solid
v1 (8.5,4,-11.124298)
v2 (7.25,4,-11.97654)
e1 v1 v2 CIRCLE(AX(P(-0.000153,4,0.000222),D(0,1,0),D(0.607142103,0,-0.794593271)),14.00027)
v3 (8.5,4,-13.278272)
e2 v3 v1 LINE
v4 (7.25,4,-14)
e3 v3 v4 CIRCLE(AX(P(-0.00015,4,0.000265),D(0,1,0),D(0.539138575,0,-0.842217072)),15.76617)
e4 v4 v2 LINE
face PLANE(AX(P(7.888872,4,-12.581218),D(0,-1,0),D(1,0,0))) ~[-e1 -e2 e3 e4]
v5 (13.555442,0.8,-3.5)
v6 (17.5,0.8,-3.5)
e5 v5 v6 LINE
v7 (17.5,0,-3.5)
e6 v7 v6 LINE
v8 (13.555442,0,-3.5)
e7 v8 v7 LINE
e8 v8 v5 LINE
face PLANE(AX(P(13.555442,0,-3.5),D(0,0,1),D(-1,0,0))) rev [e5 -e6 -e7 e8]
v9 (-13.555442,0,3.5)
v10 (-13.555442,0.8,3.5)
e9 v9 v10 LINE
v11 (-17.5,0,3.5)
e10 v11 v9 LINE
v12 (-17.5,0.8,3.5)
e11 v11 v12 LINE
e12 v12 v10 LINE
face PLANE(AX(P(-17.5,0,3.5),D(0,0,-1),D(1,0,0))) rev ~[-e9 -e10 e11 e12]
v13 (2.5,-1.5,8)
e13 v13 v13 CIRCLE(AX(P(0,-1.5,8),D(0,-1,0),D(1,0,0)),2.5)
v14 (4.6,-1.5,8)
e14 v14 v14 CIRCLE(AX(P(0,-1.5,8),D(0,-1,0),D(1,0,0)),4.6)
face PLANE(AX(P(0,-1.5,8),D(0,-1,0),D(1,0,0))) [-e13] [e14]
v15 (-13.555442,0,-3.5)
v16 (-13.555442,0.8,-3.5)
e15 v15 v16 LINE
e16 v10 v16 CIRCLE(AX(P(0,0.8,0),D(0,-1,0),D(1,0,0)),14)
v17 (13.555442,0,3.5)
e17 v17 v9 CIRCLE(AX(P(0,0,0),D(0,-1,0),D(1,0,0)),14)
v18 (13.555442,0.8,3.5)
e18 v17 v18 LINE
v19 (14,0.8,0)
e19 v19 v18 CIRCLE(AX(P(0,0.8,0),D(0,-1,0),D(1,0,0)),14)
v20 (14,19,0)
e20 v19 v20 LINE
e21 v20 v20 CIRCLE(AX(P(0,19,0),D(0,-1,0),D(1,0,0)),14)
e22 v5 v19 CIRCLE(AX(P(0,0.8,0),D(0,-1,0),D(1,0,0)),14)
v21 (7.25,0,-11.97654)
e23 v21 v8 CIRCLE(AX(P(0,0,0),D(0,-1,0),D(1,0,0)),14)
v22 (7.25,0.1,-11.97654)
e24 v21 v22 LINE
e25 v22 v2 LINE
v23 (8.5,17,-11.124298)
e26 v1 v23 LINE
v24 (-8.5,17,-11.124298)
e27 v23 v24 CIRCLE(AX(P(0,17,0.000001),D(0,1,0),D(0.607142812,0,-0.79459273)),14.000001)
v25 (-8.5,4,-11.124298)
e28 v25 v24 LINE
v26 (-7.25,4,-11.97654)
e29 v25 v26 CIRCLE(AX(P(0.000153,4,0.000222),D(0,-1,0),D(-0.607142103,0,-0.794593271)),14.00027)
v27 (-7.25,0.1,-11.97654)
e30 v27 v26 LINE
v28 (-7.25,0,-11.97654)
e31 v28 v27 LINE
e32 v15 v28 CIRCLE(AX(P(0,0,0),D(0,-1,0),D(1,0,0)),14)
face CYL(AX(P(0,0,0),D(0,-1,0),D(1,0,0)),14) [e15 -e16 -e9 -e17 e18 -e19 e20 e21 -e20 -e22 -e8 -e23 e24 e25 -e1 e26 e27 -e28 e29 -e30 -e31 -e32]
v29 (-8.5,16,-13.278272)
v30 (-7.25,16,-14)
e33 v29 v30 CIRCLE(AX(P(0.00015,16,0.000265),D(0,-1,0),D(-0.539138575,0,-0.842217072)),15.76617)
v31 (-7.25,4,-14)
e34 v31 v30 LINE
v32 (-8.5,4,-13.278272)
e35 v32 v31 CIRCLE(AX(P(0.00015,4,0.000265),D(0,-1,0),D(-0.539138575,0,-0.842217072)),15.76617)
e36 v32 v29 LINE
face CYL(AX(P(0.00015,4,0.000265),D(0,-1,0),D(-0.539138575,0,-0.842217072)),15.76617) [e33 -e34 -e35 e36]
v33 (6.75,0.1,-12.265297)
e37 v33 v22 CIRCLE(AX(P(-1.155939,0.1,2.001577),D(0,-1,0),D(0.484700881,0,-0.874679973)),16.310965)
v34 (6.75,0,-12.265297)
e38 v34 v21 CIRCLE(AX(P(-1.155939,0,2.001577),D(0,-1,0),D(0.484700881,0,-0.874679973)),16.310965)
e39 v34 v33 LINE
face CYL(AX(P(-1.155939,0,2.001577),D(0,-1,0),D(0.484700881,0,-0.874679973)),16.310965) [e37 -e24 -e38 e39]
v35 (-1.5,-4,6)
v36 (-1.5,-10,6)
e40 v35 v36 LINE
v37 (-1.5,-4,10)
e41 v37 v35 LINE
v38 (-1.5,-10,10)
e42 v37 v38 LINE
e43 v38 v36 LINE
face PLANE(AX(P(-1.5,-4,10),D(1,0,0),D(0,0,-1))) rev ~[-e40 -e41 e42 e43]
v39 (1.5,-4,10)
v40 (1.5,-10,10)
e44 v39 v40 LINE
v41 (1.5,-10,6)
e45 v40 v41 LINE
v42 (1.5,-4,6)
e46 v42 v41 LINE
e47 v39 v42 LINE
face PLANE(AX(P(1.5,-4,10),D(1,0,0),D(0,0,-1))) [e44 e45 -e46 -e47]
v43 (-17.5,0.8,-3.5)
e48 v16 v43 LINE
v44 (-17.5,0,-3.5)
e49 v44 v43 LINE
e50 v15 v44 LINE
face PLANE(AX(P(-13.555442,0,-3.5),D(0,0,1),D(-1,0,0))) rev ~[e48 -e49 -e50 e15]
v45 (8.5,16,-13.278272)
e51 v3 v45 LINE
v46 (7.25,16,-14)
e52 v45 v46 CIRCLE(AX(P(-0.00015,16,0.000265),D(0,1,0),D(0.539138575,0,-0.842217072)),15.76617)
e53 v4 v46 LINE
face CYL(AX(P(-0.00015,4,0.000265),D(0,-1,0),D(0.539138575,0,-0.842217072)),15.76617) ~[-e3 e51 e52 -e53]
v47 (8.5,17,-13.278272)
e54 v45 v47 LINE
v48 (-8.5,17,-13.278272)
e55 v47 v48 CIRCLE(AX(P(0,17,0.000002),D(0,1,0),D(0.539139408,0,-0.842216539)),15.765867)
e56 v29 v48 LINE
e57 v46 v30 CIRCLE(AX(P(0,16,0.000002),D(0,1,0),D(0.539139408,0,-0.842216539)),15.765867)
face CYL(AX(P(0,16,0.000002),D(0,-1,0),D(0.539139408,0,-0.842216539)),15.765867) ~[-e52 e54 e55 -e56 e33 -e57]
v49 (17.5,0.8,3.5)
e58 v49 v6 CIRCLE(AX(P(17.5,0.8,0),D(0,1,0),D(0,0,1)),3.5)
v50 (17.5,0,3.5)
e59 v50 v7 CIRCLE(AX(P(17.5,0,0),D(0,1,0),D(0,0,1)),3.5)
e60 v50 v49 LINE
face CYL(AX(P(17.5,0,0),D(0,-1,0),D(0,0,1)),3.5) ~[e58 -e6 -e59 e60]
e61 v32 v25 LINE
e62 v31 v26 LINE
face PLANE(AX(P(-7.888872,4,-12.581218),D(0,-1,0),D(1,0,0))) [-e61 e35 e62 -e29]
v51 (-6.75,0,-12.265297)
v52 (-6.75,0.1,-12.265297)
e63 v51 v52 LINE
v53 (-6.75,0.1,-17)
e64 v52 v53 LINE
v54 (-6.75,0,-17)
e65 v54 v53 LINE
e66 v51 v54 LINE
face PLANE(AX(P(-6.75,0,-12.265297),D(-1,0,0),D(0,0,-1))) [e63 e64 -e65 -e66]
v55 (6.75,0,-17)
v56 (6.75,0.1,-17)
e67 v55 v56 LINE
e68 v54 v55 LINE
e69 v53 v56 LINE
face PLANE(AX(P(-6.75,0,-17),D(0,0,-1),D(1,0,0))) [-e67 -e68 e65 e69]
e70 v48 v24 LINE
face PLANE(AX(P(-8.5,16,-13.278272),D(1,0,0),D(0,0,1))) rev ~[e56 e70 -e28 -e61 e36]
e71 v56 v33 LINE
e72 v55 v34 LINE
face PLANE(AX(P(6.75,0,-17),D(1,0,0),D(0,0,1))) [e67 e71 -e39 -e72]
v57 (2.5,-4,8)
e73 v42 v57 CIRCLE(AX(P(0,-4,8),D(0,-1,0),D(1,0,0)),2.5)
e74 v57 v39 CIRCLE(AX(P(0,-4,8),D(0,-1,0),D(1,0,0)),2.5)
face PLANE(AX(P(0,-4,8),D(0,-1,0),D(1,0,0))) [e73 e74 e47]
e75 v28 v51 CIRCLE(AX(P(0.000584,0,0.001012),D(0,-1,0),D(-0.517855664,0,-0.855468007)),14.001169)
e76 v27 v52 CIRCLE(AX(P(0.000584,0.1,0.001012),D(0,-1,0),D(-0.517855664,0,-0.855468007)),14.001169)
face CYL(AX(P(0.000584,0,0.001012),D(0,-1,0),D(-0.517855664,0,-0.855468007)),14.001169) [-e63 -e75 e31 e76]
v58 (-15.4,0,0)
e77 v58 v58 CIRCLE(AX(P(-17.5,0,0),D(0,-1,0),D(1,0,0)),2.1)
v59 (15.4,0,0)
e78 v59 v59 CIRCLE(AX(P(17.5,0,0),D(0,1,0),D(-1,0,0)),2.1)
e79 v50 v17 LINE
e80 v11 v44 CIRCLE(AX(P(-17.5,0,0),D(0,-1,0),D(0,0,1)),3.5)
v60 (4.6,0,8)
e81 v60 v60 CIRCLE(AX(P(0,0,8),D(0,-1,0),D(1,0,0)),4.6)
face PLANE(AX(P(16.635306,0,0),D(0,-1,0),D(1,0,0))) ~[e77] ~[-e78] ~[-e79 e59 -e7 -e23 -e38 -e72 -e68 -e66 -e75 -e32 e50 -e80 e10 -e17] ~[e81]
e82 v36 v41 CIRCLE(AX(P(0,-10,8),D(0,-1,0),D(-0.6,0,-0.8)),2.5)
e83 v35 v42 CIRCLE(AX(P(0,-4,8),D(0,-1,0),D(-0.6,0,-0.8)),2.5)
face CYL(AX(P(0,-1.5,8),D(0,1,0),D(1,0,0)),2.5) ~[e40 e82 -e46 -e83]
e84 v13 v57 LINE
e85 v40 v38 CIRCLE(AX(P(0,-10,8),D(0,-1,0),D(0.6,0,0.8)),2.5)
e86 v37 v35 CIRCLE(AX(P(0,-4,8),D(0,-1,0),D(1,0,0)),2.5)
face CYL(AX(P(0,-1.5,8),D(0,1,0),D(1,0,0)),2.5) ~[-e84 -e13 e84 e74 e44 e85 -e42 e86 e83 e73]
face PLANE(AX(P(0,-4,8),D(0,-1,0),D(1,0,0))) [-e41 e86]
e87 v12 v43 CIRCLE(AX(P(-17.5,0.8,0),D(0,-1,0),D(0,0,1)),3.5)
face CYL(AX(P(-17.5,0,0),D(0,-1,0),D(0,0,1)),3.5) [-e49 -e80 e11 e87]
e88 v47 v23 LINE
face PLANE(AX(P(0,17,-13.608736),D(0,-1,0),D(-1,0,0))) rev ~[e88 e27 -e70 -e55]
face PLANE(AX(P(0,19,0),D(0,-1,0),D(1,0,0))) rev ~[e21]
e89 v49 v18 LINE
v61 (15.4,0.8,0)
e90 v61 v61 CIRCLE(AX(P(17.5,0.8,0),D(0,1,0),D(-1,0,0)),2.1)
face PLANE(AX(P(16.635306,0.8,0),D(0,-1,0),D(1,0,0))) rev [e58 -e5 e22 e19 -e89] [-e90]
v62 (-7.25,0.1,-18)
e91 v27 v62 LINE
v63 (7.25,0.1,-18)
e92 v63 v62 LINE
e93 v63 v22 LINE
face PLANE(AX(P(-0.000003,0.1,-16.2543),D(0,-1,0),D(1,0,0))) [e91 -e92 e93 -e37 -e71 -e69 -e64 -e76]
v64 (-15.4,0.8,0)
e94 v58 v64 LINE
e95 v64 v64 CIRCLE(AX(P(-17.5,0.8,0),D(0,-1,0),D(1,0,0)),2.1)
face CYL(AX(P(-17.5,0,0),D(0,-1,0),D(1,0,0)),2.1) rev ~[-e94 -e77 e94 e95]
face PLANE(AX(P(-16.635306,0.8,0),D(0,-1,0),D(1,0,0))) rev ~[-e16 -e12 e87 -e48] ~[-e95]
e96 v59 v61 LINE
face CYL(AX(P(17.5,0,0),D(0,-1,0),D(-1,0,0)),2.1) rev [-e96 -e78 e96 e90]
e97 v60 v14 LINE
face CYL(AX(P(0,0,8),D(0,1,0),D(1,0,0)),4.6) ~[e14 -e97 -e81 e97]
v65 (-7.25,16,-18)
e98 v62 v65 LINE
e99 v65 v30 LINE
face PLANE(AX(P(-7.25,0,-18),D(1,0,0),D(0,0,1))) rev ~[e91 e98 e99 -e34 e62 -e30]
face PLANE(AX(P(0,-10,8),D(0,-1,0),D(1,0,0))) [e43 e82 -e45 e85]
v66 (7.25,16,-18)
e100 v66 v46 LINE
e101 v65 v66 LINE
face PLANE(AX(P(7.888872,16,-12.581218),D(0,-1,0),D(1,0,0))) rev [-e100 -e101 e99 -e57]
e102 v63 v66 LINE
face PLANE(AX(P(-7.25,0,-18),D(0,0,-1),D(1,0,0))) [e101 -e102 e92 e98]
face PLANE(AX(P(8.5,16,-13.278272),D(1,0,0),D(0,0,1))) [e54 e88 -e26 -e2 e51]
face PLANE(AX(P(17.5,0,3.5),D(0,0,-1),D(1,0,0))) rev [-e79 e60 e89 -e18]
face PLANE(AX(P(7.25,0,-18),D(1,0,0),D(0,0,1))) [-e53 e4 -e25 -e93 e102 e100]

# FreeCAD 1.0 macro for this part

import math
import FreeCAD as App
import Part
import Sketcher
from FreeCAD import Vector


def add_polygon(sketch, points):
    """Adds a closed chain of lines whose ends are joined by coincident constraints."""
    first, n = sketch.GeometryCount, len(points)
    for a, b in zip(points, points[1:] + points[:1]):
        sketch.addGeometry(Part.LineSegment(App.Vector(*a, 0), App.Vector(*b, 0)), False)
    for i in range(n):
        sketch.addConstraint(Sketcher.Constraint("Coincident", first + i, 2, first + (i + 1) % n, 1))

doc = App.newDocument("Part")
body = doc.addObject("PartDesign::Body", "Body")

sketch1 = doc.addObject("Sketcher::SketchObject", "Sketch")
body.addObject(sketch1)
sketch1.AttachmentSupport = (doc.XZ_Plane, [""])
sketch1.MapMode = "FlatFace"
sketch1.addGeometry(Part.Circle(Vector(0, 0, 0), Vector(0, 0, 1), 14), False)
sketch1.addConstraint([
    Sketcher.Constraint("Coincident", 0, 3, -1, 1),
    Sketcher.Constraint("Diameter", 0, 28.0),
])
pad1 = doc.addObject("PartDesign::Pad", "Pad")
body.addObject(pad1)
pad1.Profile = sketch1
pad1.Length = 19
pad1.Reversed = True

sketch2 = doc.addObject("Sketcher::SketchObject", "Sketch001")
body.addObject(sketch2)
sketch2.AttachmentSupport = (doc.XZ_Plane, [""])
sketch2.MapMode = "FlatFace"
add_polygon(sketch2, [(-7.25, -11.97654), (-7.25, -18), (7.25, -18), (7.25, -11.97654)])
sketch2.addConstraint([
    Sketcher.Constraint("Vertical", 0),
    Sketcher.Constraint("Horizontal", 1),
    Sketcher.Constraint("Vertical", 2),
    Sketcher.Constraint("Horizontal", 3),
    Sketcher.Constraint("DistanceX", 1, 1, 1, 2, 14.5),
    Sketcher.Constraint("DistanceY", 0, 2, -1, 1, 18.0),
    Sketcher.Constraint("DistanceX", 0, 2, -1, 1, 7.25),
    Sketcher.Constraint("DistanceY", 0, 2, 0, 1, 6.02346),
])
pad2 = doc.addObject("PartDesign::Pad", "Pad001")
body.addObject(pad2)
pad2.Profile = sketch2
pad2.Length = 16
pad2.Reversed = True

sketch3 = doc.addObject("Sketcher::SketchObject", "Sketch002")
body.addObject(sketch3)
sketch3.AttachmentSupport = (doc.XZ_Plane, [""])
sketch3.MapMode = "FlatFace"
sketch3.addGeometry([
    Part.ArcOfCircle(Part.Circle(Vector(-17.5, 0, 0), Vector(0, 0, 1), 3.5), math.radians(90), math.radians(270)),
    Part.LineSegment(Vector(-17.5, -3.5, 0), Vector(-13.555442, -3.5, 0)),
    Part.LineSegment(Vector(-13.555442, -3.5, 0), Vector(-13.555442, 3.5, 0)),
    Part.LineSegment(Vector(-13.555442, 3.5, 0), Vector(-17.5, 3.5, 0)),
    Part.Circle(Vector(-17.5, 0, 0), Vector(0, 0, 1), 2.1),
], False)
sketch3.addConstraint([
    Sketcher.Constraint("Tangent", 0, 2, 1, 1),
    Sketcher.Constraint("Coincident", 1, 2, 2, 1),
    Sketcher.Constraint("Coincident", 2, 2, 3, 1),
    Sketcher.Constraint("Tangent", 3, 2, 0, 1),
    Sketcher.Constraint("Horizontal", 1),
    Sketcher.Constraint("Vertical", 2),
    Sketcher.Constraint("Horizontal", 3),
    Sketcher.Constraint("Coincident", 4, 3, 0, 3),
    Sketcher.Constraint("PointOnObject", 0, 3, -1),
    Sketcher.Constraint("Diameter", 4, 4.2),
    Sketcher.Constraint("Radius", 0, 3.5),
    Sketcher.Constraint("DistanceX", 0, 3, -1, 1, 17.5),
    Sketcher.Constraint("DistanceX", 1, 1, 1, 2, 3.944558),
])
pad3 = doc.addObject("PartDesign::Pad", "Pad002")
body.addObject(pad3)
pad3.Profile = sketch3
pad3.Length = 0.8
pad3.Reversed = True
doc.recompute()

mirrored = doc.addObject("PartDesign::Mirrored", "Mirrored")
body.addObject(mirrored)
mirrored.Originals = [pad3]
mirrored.MirrorPlane = (doc.YZ_Plane, [""])
body.Tip = mirrored

sketch4 = doc.addObject("Sketcher::SketchObject", "Sketch003")
body.addObject(sketch4)
sketch4.AttachmentSupport = (doc.XZ_Plane, [""])
sketch4.MapMode = "FlatFace"
sketch4.addGeometry(Part.Circle(Vector(0, 8, 0), Vector(0, 0, 1), 4.6), False)
sketch4.addConstraint([
    Sketcher.Constraint("PointOnObject", 0, 3, -2),
    Sketcher.Constraint("Diameter", 0, 9.2),
    Sketcher.Constraint("DistanceY", -1, 1, 0, 3, 8.0),
])
pad4 = doc.addObject("PartDesign::Pad", "Pad003")
body.addObject(pad4)
pad4.Profile = sketch4
pad4.Length = 1.5

sketch5 = doc.addObject("Sketcher::SketchObject", "Sketch004")
body.addObject(sketch5)
sketch5.AttachmentSupport = (doc.XZ_Plane, [""])
sketch5.MapMode = "FlatFace"
sketch5.AttachmentOffset = App.Placement(Vector(0, 0, 1.5), App.Rotation())
sketch5.addGeometry(Part.Circle(Vector(0, 8, 0), Vector(0, 0, 1), 2.5), False)
sketch5.addConstraint([
    Sketcher.Constraint("PointOnObject", 0, 3, -2),
    Sketcher.Constraint("Diameter", 0, 5.0),
    Sketcher.Constraint("DistanceY", -1, 1, 0, 3, 8.0),
])
pad5 = doc.addObject("PartDesign::Pad", "Pad004")
body.addObject(pad5)
pad5.Profile = sketch5
pad5.Length = 2.5

sketch6 = doc.addObject("Sketcher::SketchObject", "Sketch005")
body.addObject(sketch6)
sketch6.AttachmentSupport = (doc.XZ_Plane, [""])
sketch6.MapMode = "FlatFace"
sketch6.AttachmentOffset = App.Placement(Vector(0, 0, 4), App.Rotation())
sketch6.addGeometry([
    Part.LineSegment(Vector(-1.5, 10, 0), Vector(-1.5, 6, 0)),
    Part.ArcOfCircle(Part.Circle(Vector(0, 8, 0), Vector(0, 0, 1), 2.5), math.radians(-126.869898), math.radians(-53.130102)),
    Part.LineSegment(Vector(1.5, 6, 0), Vector(1.5, 10, 0)),
    Part.ArcOfCircle(Part.Circle(Vector(0, 8, 0), Vector(0, 0, 1), 2.5), math.radians(53.130102), math.radians(126.869898)),
], False)
sketch6.addConstraint([
    Sketcher.Constraint("Coincident", 0, 2, 1, 1),
    Sketcher.Constraint("Coincident", 1, 2, 2, 1),
    Sketcher.Constraint("Coincident", 2, 2, 3, 1),
    Sketcher.Constraint("Coincident", 3, 2, 0, 1),
    Sketcher.Constraint("Vertical", 0),
    Sketcher.Constraint("Vertical", 2),
    Sketcher.Constraint("Coincident", 3, 3, 1, 3),
    Sketcher.Constraint("Equal", 1, 3),
    Sketcher.Constraint("Symmetric", 0, 2, 1, 2, -2),
    Sketcher.Constraint("Radius", 1, 2.5),
    Sketcher.Constraint("DistanceY", 0, 2, 0, 1, 4.0),
    Sketcher.Constraint("DistanceY", -1, 1, 1, 3, 8.0),
])
pad6 = doc.addObject("PartDesign::Pad", "Pad005")
body.addObject(pad6)
pad6.Profile = sketch6
pad6.Length = 6

sketch7 = doc.addObject("Sketcher::SketchObject", "Sketch006")
body.addObject(sketch7)
sketch7.AttachmentSupport = (doc.XZ_Plane, [""])
sketch7.MapMode = "FlatFace"
sketch7.AttachmentOffset = App.Placement(Vector(0, 0, -4), App.Rotation())
sketch7.addGeometry([
    Part.ArcOfCircle(Part.Circle(Vector(0.00015, 0.000265, 0), Vector(0, 0, 1), 15.76617), math.radians(-122.625017), math.radians(-117.377744)),
    Part.LineSegment(Vector(-7.25, -14, 0), Vector(-7.25, -11.97654, 0)),
    Part.ArcOfCircle(Part.Circle(Vector(0.000153, 0.000222, 0), Vector(0, 0, 1), 14.00027), math.radians(-127.383144), math.radians(-121.188687)),
    Part.LineSegment(Vector(-8.5, -11.124298, 0), Vector(-8.5, -13.278272, 0)),
], False)
sketch7.addConstraint([
    Sketcher.Constraint("Coincident", 0, 2, 1, 1),
    Sketcher.Constraint("Coincident", 1, 2, 2, 2),
    Sketcher.Constraint("Coincident", 2, 1, 3, 1),
    Sketcher.Constraint("Coincident", 3, 2, 0, 1),
    Sketcher.Constraint("Vertical", 1),
    Sketcher.Constraint("Vertical", 3),
    Sketcher.Constraint("DistanceY", 0, 2, -1, 1, 14.0),
    Sketcher.Constraint("DistanceX", 2, 1, -1, 1, 8.5),
    Sketcher.Constraint("DistanceX", 0, 2, -1, 1, 7.25),
    Sketcher.Constraint("Radius", 0, 15.76617),
    Sketcher.Constraint("Radius", 2, 14.00027),
    Sketcher.Constraint("DistanceY", 1, 1, 1, 2, 2.02346),
    Sketcher.Constraint("DistanceY", 0, 2, 2, 1, 2.875702),
    Sketcher.Constraint("DistanceY", 3, 2, 3, 1, 2.153974),
])
pad7 = doc.addObject("PartDesign::Pad", "Pad006")
body.addObject(pad7)
pad7.Profile = sketch7
pad7.Length = 12
pad7.Reversed = True
doc.recompute()

mirrored2 = doc.addObject("PartDesign::Mirrored", "Mirrored001")
body.addObject(mirrored2)
mirrored2.Originals = [pad7]
mirrored2.MirrorPlane = (doc.YZ_Plane, [""])
body.Tip = mirrored2

sketch8 = doc.addObject("Sketcher::SketchObject", "Sketch007")
body.addObject(sketch8)
sketch8.AttachmentSupport = (doc.XZ_Plane, [""])
sketch8.MapMode = "FlatFace"
sketch8.AttachmentOffset = App.Placement(Vector(0, 0, -16), App.Rotation())
sketch8.addGeometry([
    Part.ArcOfCircle(Part.Circle(Vector(0, 0.000001, 0), Vector(0, 0, 1), 14.000001), math.radians(-127.383195), math.radians(-52.616805)),
    Part.LineSegment(Vector(8.5, -11.124298, 0), Vector(8.5, -13.278272, 0)),
    Part.ArcOfCircle(Part.Circle(Vector(0, 0.000002, 0), Vector(0, 0, 1), 15.765867), math.radians(-122.625074), math.radians(-57.374926)),
    Part.LineSegment(Vector(-8.5, -13.278272, 0), Vector(-8.5, -11.124298, 0)),
], False)
sketch8.addConstraint([
    Sketcher.Constraint("Coincident", 0, 2, 1, 1),
    Sketcher.Constraint("Coincident", 1, 2, 2, 2),
    Sketcher.Constraint("Coincident", 2, 1, 3, 1),
    Sketcher.Constraint("Coincident", 3, 2, 0, 1),
    Sketcher.Constraint("Vertical", 1),
    Sketcher.Constraint("Vertical", 3),
    Sketcher.Constraint("Coincident", 0, 3, -1, 1),
    Sketcher.Constraint("Coincident", 2, 3, -1, 1),
    Sketcher.Constraint("Horizontal", 1, 2, 2, 1),
    Sketcher.Constraint("Radius", 0, 14.000001),
    Sketcher.Constraint("DistanceX", 2, 1, 1, 2, 17.0),
    Sketcher.Constraint("Radius", 2, 15.765867),
])
pad8 = doc.addObject("PartDesign::Pad", "Pad007")
body.addObject(pad8)
pad8.Profile = sketch8
pad8.Length = 1
pad8.Reversed = True

sketch9 = doc.addObject("Sketcher::SketchObject", "Sketch008")
body.addObject(sketch9)
sketch9.AttachmentSupport = (doc.XZ_Plane, [""])
sketch9.MapMode = "FlatFace"
sketch9.addGeometry([
    Part.LineSegment(Vector(-7.25, -11.97654, 0), Vector(-7.25, -18, 0)),
    Part.LineSegment(Vector(-7.25, -18, 0), Vector(7.25, -18, 0)),
    Part.LineSegment(Vector(7.25, -18, 0), Vector(7.25, -11.97654, 0)),
    Part.ArcOfCircle(Part.Circle(Vector(-1.155939, 2.001577, 0), Vector(0, 0, 1), 16.310965), math.radians(-61.007123), math.radians(-58.978806)),
    Part.LineSegment(Vector(6.75, -12.265297, 0), Vector(6.75, -17, 0)),
    Part.LineSegment(Vector(6.75, -17, 0), Vector(-6.75, -17, 0)),
    Part.LineSegment(Vector(-6.75, -17, 0), Vector(-6.75, -12.265297, 0)),
    Part.ArcOfCircle(Part.Circle(Vector(0.000584, 0.001012, 0), Vector(0, 0, 1), 14.001169), math.radians(-121.188523), math.radians(-118.825547)),
], False)
sketch9.addConstraint([
    Sketcher.Constraint("Coincident", 0, 2, 1, 1),
    Sketcher.Constraint("Coincident", 1, 2, 2, 1),
    Sketcher.Constraint("Coincident", 2, 2, 3, 2),
    Sketcher.Constraint("Coincident", 3, 1, 4, 1),
    Sketcher.Constraint("Coincident", 4, 2, 5, 1),
    Sketcher.Constraint("Coincident", 5, 2, 6, 1),
    Sketcher.Constraint("Coincident", 6, 2, 7, 2),
    Sketcher.Constraint("Coincident", 7, 1, 0, 1),
    Sketcher.Constraint("Vertical", 0),
    Sketcher.Constraint("Horizontal", 1),
    Sketcher.Constraint("Vertical", 2),
    Sketcher.Constraint("Vertical", 4),
    Sketcher.Constraint("Horizontal", 5),
    Sketcher.Constraint("Vertical", 6),
    Sketcher.Constraint("Symmetric", 3, 1, 6, 2, -2),
    Sketcher.Constraint("Symmetric", 2, 2, 7, 1, -2),
    Sketcher.Constraint("DistanceX", 1, 1, 1, 2, 14.5),
    Sketcher.Constraint("DistanceX", 5, 2, 5, 1, 13.5),
    Sketcher.Constraint("DistanceY", 0, 2, -1, 1, 18.0),
    Sketcher.Constraint("DistanceY", 4, 2, -1, 1, 17.0),
    Sketcher.Constraint("Radius", 7, 14.001169),
    Sketcher.Constraint("Radius", 3, 16.310965),
    Sketcher.Constraint("DistanceY", 0, 2, 0, 1, 6.02346),
    Sketcher.Constraint("DistanceY", 4, 2, 4, 1, 4.734703),
])
pocket1 = doc.addObject("PartDesign::Pocket", "Pocket")
body.addObject(pocket1)
pocket1.Profile = sketch9
pocket1.Length = 0.1

doc.recompute()
